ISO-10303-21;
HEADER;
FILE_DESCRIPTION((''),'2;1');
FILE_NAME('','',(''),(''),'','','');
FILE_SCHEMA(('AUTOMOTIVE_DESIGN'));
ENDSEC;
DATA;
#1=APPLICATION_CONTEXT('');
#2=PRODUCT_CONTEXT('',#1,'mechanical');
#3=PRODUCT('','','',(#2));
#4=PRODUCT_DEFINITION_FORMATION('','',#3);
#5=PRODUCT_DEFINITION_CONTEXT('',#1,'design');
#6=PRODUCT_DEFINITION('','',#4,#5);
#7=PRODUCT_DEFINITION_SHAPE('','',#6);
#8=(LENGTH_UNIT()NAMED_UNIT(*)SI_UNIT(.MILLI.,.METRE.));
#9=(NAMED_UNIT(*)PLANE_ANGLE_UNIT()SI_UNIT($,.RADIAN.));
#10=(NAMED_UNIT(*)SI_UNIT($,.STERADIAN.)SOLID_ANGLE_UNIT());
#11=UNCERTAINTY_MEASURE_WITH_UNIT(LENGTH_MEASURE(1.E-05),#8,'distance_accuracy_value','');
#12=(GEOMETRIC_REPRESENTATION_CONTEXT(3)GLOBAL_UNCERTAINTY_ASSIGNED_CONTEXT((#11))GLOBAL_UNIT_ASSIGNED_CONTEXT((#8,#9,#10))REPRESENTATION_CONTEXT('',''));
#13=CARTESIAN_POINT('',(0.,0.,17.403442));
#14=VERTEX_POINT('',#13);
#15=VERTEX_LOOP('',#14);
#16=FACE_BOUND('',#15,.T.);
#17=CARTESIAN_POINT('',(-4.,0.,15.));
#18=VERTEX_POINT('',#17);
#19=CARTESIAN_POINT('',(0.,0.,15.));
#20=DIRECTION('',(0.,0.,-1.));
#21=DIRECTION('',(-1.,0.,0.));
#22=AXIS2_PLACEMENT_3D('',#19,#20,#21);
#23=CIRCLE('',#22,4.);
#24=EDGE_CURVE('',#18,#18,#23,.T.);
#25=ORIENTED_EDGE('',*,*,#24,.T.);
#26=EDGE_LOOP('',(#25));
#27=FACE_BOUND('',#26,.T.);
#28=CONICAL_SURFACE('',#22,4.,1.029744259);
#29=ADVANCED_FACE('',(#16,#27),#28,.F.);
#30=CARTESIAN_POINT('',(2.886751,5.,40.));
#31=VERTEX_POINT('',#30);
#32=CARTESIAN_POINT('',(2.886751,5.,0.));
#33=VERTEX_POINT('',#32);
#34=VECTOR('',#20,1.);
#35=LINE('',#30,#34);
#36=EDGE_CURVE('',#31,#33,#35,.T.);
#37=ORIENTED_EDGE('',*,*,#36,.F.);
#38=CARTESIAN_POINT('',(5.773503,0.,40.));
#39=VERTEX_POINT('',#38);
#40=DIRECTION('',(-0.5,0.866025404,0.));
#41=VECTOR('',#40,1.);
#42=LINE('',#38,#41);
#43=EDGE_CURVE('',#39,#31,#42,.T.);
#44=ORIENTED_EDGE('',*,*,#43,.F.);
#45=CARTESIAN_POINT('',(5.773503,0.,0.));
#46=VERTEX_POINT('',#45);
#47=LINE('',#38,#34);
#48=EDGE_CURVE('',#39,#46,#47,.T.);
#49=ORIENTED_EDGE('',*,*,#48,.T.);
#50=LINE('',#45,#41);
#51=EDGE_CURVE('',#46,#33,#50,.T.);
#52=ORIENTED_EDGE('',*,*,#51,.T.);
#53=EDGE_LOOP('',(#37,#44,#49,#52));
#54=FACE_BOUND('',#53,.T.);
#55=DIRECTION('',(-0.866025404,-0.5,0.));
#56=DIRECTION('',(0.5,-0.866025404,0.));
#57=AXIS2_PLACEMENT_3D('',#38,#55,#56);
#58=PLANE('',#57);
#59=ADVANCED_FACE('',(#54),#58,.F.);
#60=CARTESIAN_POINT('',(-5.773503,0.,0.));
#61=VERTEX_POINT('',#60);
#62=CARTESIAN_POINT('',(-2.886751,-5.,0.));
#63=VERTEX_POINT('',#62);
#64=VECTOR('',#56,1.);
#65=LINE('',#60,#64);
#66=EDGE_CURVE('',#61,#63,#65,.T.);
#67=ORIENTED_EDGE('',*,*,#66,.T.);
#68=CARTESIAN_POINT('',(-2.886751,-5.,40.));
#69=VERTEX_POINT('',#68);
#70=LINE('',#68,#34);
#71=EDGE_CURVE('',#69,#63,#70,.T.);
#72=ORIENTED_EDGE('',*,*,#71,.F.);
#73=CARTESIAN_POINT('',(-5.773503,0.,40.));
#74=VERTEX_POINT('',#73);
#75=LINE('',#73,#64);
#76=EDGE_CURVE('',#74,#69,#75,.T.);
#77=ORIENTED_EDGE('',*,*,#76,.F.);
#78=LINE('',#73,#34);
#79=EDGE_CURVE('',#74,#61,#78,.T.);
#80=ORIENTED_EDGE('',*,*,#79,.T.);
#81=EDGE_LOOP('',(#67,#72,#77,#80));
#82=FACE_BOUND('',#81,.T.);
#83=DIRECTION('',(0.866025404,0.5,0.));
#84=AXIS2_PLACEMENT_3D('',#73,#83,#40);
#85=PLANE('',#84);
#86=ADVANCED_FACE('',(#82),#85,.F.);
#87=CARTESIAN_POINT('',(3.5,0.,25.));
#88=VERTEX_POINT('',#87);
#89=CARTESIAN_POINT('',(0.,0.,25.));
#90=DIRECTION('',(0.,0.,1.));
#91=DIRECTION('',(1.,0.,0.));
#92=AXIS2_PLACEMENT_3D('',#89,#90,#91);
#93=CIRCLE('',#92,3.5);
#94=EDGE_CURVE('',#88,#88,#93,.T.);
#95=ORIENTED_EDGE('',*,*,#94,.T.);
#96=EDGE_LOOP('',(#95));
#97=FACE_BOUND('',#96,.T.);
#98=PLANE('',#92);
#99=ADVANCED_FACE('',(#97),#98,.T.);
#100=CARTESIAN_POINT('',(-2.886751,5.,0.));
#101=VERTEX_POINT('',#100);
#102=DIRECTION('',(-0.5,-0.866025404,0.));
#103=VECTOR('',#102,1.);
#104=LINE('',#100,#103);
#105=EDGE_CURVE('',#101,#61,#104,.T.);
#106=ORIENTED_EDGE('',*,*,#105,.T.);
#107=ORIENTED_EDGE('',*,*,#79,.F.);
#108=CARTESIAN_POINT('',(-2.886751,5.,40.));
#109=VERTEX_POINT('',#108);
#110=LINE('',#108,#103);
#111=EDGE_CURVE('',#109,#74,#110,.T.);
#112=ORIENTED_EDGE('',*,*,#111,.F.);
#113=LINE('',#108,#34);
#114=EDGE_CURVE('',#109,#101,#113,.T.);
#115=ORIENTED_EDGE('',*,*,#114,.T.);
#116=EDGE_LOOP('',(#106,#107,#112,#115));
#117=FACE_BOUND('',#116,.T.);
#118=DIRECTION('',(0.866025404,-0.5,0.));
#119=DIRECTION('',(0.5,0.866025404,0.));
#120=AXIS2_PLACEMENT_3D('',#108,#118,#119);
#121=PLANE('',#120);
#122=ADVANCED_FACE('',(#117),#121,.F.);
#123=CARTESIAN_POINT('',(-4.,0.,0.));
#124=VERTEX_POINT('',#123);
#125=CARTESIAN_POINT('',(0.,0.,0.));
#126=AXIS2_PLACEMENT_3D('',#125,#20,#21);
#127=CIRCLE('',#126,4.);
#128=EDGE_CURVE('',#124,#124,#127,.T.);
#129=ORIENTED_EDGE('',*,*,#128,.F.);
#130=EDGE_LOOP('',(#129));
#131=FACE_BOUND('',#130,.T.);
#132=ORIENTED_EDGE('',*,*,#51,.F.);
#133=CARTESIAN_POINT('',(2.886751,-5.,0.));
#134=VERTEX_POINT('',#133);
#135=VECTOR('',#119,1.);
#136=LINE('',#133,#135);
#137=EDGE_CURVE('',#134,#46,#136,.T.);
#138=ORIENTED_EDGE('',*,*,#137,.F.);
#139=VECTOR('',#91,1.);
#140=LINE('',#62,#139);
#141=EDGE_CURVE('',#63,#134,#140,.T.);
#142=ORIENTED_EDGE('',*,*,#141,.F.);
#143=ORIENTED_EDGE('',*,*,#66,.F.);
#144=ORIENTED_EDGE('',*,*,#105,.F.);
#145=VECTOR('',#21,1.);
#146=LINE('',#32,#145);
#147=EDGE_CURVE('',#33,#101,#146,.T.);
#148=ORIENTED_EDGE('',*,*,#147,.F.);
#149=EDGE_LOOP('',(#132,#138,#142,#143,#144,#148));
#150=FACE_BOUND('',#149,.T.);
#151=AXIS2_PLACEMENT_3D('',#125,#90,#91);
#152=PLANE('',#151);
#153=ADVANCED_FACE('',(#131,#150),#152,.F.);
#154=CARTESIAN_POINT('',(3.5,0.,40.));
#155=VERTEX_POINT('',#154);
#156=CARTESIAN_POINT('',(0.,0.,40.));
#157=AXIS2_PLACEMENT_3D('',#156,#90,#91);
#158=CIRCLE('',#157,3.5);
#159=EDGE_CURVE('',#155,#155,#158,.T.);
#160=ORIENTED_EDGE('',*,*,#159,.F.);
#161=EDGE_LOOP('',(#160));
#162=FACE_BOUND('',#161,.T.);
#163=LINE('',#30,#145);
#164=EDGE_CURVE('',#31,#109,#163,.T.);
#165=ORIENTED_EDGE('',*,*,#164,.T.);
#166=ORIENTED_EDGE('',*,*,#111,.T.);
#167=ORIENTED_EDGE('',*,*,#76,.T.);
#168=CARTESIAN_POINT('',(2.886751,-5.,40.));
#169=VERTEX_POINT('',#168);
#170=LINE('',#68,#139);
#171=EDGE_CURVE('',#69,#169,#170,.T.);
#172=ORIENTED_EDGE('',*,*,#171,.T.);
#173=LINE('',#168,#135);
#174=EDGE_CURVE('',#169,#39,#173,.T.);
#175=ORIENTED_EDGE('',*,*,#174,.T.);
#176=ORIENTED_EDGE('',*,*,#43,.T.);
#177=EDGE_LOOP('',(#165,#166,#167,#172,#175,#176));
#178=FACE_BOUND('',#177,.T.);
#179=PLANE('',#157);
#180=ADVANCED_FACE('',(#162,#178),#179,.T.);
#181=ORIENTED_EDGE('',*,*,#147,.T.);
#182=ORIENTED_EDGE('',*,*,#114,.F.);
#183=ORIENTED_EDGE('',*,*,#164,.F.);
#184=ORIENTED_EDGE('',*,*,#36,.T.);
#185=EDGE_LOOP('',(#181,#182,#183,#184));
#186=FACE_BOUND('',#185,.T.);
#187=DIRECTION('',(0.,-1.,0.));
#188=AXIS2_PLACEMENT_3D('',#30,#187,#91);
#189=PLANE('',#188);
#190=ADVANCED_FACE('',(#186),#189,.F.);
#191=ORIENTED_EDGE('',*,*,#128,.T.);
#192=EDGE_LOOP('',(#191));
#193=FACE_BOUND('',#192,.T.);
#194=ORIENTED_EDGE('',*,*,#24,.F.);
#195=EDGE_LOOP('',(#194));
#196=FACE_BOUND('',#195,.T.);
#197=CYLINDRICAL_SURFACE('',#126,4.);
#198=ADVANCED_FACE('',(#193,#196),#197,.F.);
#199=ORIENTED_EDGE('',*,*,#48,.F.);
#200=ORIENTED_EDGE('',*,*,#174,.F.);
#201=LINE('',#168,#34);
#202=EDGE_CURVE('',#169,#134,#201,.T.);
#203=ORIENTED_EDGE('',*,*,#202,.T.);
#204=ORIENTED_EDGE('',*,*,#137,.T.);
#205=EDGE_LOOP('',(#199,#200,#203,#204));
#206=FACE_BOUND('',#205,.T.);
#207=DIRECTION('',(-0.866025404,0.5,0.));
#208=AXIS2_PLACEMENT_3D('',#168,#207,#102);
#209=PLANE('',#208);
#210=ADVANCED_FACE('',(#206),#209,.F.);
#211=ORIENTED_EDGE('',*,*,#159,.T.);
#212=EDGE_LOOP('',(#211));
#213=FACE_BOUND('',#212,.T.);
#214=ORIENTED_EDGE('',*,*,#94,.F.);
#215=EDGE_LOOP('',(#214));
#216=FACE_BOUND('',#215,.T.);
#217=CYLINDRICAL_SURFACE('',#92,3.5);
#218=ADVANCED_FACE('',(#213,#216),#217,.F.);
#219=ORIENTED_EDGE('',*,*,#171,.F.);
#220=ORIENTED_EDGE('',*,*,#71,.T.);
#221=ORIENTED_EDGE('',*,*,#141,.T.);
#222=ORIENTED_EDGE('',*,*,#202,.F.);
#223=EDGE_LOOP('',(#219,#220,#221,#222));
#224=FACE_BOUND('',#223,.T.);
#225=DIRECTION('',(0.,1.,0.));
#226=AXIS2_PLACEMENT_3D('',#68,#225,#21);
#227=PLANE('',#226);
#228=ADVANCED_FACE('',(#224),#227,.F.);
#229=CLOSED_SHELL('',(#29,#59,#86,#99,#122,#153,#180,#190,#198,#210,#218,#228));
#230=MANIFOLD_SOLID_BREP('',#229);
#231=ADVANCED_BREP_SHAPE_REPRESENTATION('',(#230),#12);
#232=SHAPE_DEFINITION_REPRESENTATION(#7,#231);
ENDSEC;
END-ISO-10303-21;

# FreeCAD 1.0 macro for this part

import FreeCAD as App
import Part
import Sketcher

V = App.Vector
Q = App.Units.Quantity

doc = App.newDocument("Part")
body = doc.addObject("PartDesign::Body", "Body")

# Sketch on XY plane
sketch1 = body.newObject("Sketcher::SketchObject", "Sketch")
sketch1.AttachmentSupport = (doc.getObject("XY_Plane"), [""])
sketch1.MapMode = "FlatFace"
sketch1.addGeometry(Part.LineSegment(V(6, 0, 0), V(3, 5, 0)), False)
sketch1.addGeometry(Part.LineSegment(V(3, 5, 0), V(-3, 5, 0)), False)
sketch1.addGeometry(Part.LineSegment(V(-3, 5, 0), V(-6, 0, 0)), False)
sketch1.addGeometry(Part.LineSegment(V(-6, 0, 0), V(-3, -5, 0)), False)
sketch1.addGeometry(Part.LineSegment(V(-3, -5, 0), V(3, -5, 0)), False)
sketch1.addGeometry(Part.LineSegment(V(3, -5, 0), V(6, 0, 0)), False)
sketch1.addConstraint(Sketcher.Constraint("Coincident", 0, 2, 1, 1))
sketch1.addConstraint(Sketcher.Constraint("Coincident", 1, 2, 2, 1))
sketch1.addConstraint(Sketcher.Constraint("Coincident", 2, 2, 3, 1))
sketch1.addConstraint(Sketcher.Constraint("Coincident", 3, 2, 4, 1))
sketch1.addConstraint(Sketcher.Constraint("Coincident", 4, 2, 5, 1))
sketch1.addConstraint(Sketcher.Constraint("Coincident", 5, 2, 0, 1))
sketch1.addConstraint(Sketcher.Constraint("Horizontal", 1))
sketch1.addConstraint(Sketcher.Constraint("Horizontal", 4))
sketch1.addConstraint(Sketcher.Constraint("Symmetric", 0, 2, 3, 2, -1, 1))
sketch1.addConstraint(Sketcher.Constraint("Symmetric", 2, 2, 5, 2, -1, 1))
sketch1.addConstraint(Sketcher.Constraint("PointOnObject", 2, 2, -1))
sketch1.addConstraint(Sketcher.Constraint("Parallel", 2, 5))
sketch1.addConstraint(Sketcher.Constraint("Vertical", 1, 2, 3, 2))
sketch1.addConstraint(Sketcher.Constraint("Angle", 0, Q("120 deg")))
sketch1.addConstraint(Sketcher.Constraint("DistanceY", -1, 1, 0, 2, Q("5 mm")))
sketch1.addConstraint(Sketcher.Constraint("DistanceX", 1, 2, 1, 1, Q("5.773503 mm")))
pad1 = body.newObject("PartDesign::Pad", "Pad")
pad1.Profile = sketch1
pad1.Length = 40

# Sketch on XY plane
sketch2 = body.newObject("Sketcher::SketchObject", "Sketch001")
sketch2.AttachmentSupport = (doc.getObject("XY_Plane"), [""])
sketch2.MapMode = "FlatFace"
sketch2.AttachmentOffset = App.Placement(V(0, 0, 40), App.Rotation())
sketch2.addGeometry(Part.Circle(V(0, 0, 0), V(0, 0, 1), 3.5), False)
sketch2.addConstraint(Sketcher.Constraint("Coincident", 0, 3, -1, 1))
sketch2.addConstraint(Sketcher.Constraint("Diameter", 0, Q("7 mm")))
pocket1 = body.newObject("PartDesign::Pocket", "Pocket")
pocket1.Profile = sketch2
pocket1.Length = 15

# Sketch on XY plane
sketch3 = body.newObject("Sketcher::SketchObject", "Sketch002")
sketch3.AttachmentSupport = (doc.getObject("XY_Plane"), [""])
sketch3.MapMode = "FlatFace"
sketch3.addGeometry(Part.Circle(V(0, 0, 0), V(0, 0, 1), 4), False)
sketch3.addConstraint(Sketcher.Constraint("Coincident", 0, 3, -1, 1))
sketch3.addConstraint(Sketcher.Constraint("Diameter", 0, Q("8 mm")))
doc.recompute()
hole = body.newObject("PartDesign::Hole", "Hole")
hole.Profile = sketch3
hole.ThreadType = "None"
hole.Diameter = 8
hole.DepthType = "Dimension"
hole.Depth = 15
hole.DrillPoint = "Angled"
hole.DrillPointAngle = 118
hole.Reversed = True

doc.recompute()
